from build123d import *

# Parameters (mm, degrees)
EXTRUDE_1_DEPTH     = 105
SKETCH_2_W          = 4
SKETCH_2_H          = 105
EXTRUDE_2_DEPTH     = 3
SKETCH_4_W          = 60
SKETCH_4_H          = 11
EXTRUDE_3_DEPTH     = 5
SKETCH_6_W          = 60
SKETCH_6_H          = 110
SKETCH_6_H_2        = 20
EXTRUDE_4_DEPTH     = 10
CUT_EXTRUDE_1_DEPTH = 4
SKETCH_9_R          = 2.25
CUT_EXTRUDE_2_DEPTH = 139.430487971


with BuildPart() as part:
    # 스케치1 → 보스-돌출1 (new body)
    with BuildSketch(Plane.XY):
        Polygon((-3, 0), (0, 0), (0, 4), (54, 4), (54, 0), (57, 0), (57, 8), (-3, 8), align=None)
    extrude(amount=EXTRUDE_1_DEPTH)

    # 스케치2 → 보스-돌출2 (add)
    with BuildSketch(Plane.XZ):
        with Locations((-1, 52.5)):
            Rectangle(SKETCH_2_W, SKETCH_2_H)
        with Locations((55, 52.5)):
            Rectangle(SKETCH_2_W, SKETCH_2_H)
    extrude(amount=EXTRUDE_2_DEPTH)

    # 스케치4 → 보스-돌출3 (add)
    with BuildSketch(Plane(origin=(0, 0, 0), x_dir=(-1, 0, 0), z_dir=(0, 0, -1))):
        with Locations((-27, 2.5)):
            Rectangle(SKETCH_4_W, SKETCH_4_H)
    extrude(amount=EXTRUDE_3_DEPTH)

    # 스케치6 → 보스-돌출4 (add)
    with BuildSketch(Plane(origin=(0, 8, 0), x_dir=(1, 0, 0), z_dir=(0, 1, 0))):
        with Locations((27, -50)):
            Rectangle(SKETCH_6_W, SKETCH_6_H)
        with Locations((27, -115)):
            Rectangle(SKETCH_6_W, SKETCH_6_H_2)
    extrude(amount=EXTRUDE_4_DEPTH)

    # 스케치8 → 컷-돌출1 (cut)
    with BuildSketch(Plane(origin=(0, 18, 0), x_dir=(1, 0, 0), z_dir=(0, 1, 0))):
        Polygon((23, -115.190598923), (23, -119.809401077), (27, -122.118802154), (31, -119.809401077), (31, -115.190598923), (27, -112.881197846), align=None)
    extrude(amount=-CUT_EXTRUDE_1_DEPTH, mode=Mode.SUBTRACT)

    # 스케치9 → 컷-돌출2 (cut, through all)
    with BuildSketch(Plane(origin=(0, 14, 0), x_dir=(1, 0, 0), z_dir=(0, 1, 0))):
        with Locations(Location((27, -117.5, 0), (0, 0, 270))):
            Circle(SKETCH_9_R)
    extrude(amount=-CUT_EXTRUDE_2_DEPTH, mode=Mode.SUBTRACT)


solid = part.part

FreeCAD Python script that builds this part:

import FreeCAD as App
import Part
import Sketcher
from FreeCAD import Vector
Q = App.Units.Quantity


def add_polygon(sketch, points):
    """Adds a closed chain of lines whose ends are joined by coincident constraints."""
    first, n = sketch.GeometryCount, len(points)
    for a, b in zip(points, points[1:] + points[:1]):
        sketch.addGeometry(Part.LineSegment(App.Vector(*a, 0), App.Vector(*b, 0)), False)
    for i in range(n):
        sketch.addConstraint(Sketcher.Constraint("Coincident", first + i, 2, first + (i + 1) % n, 1))

doc = App.newDocument("Part")
body = doc.addObject("PartDesign::Body", "Body")

# Sketch on XY plane
sketch1 = doc.addObject("Sketcher::SketchObject", "Sketch")
body.addObject(sketch1)
sketch1.AttachmentSupport = (doc.XY_Plane, [""])
sketch1.MapMode = "FlatFace"
add_polygon(sketch1, [(-3, 0), (0, 0), (0, 4), (54, 4), (54, 0), (57, 0), (57, 8), (-3, 8)])  # lines 0-7
sketch1.addConstraint([
    Sketcher.Constraint("Horizontal", 0),
    Sketcher.Constraint("Vertical", 1),
    Sketcher.Constraint("Horizontal", 2),
    Sketcher.Constraint("Vertical", 3),
    Sketcher.Constraint("Horizontal", 4),
    Sketcher.Constraint("Vertical", 5),
    Sketcher.Constraint("Horizontal", 6),
    Sketcher.Constraint("Vertical", 7),
    Sketcher.Constraint("Coincident", 0, 2, -1, 1),
    Sketcher.Constraint("PointOnObject", 3, 2, -1),
    Sketcher.Constraint("Equal", 0, 4),
    Sketcher.Constraint("DistanceX", 0, 1, 0, 2, 3.0),
    Sketcher.Constraint("DistanceX", 2, 1, 2, 2, 54.0),
    Sketcher.Constraint("DistanceY", 1, 1, 1, 2, 4.0),
    Sketcher.Constraint("DistanceY", 5, 1, 5, 2, 8.0),
])
pad1 = doc.addObject("PartDesign::Pad", "Pad")
body.addObject(pad1)
pad1.Profile = sketch1
pad1.Length = 105

# Sketch on XZ plane
sketch2 = doc.addObject("Sketcher::SketchObject", "Sketch001")
body.addObject(sketch2)
sketch2.AttachmentSupport = (doc.XZ_Plane, [""])
sketch2.MapMode = "FlatFace"
add_polygon(sketch2, [(-3, 105), (-3, 0), (1, 0), (1, 105)])  # lines 0-3
add_polygon(sketch2, [(53, 105), (53, 0), (57, 0), (57, 105)])  # lines 4-7
sketch2.addConstraint([
    Sketcher.Constraint("Vertical", 0),
    Sketcher.Constraint("Horizontal", 1),
    Sketcher.Constraint("Vertical", 2),
    Sketcher.Constraint("Horizontal", 3),
    Sketcher.Constraint("Vertical", 4),
    Sketcher.Constraint("Horizontal", 5),
    Sketcher.Constraint("Vertical", 6),
    Sketcher.Constraint("Horizontal", 7),
    Sketcher.Constraint("PointOnObject", 0, 2, -1),
    Sketcher.Constraint("PointOnObject", 4, 2, -1),
    Sketcher.Constraint("Horizontal", 3, 2, 6, 2),
    Sketcher.Constraint("Equal", 3, 5),
    Sketcher.Constraint("DistanceX", 1, 1, 1, 2, 4.0),
    Sketcher.Constraint("DistanceY", 0, 2, 0, 1, 105.0),
    Sketcher.Constraint("DistanceX", 0, 2, -1, 1, 3.0),
    Sketcher.Constraint("DistanceX", -1, 1, 4, 2, 53.0),
])
pad2 = doc.addObject("PartDesign::Pad", "Pad001")
body.addObject(pad2)
pad2.Profile = sketch2
pad2.Length = 3

# Sketch on XY plane
sketch3 = doc.addObject("Sketcher::SketchObject", "Sketch002")
body.addObject(sketch3)
sketch3.AttachmentSupport = (doc.XY_Plane, [""])
sketch3.MapMode = "FlatFace"
add_polygon(sketch3, [(57, 8), (57, -3), (-3, -3), (-3, 8)])  # lines 0-3
sketch3.addConstraint([
    Sketcher.Constraint("Vertical", 0),
    Sketcher.Constraint("Horizontal", 1),
    Sketcher.Constraint("Vertical", 2),
    Sketcher.Constraint("Horizontal", 3),
    Sketcher.Constraint("DistanceX", 1, 2, 1, 1, 60.0),
    Sketcher.Constraint("DistanceY", 0, 2, 0, 1, 11.0),
    Sketcher.Constraint("DistanceX", -1, 1, 0, 2, 57.0),
    Sketcher.Constraint("DistanceY", 0, 2, -1, 1, 3.0),
])
pad3 = doc.addObject("PartDesign::Pad", "Pad002")
body.addObject(pad3)
pad3.Profile = sketch3
pad3.Length = 5
pad3.Reversed = True

# Sketch on XZ plane
sketch4 = doc.addObject("Sketcher::SketchObject", "Sketch003")
body.addObject(sketch4)
sketch4.AttachmentSupport = (doc.XZ_Plane, [""])
sketch4.MapMode = "FlatFace"
sketch4.AttachmentOffset = App.Placement(Vector(0, 0, -8), App.Rotation())
add_polygon(sketch4, [(-3, -5), (-3, 125), (57, 125), (57, -5)])  # lines 0-3
sketch4.addConstraint([
    Sketcher.Constraint("Vertical", 0),
    Sketcher.Constraint("Horizontal", 1),
    Sketcher.Constraint("Vertical", 2),
    Sketcher.Constraint("Horizontal", 3),
    Sketcher.Constraint("DistanceX", 1, 1, 1, 2, 60.0),
    Sketcher.Constraint("DistanceY", 0, 1, 0, 2, 130.0),
    Sketcher.Constraint("DistanceX", 0, 2, -1, 1, 3.0),
    Sketcher.Constraint("DistanceY", -1, 1, 0, 2, 125.0),
])
pad4 = doc.addObject("PartDesign::Pad", "Pad003")
body.addObject(pad4)
pad4.Profile = sketch4
pad4.Length = 10
pad4.Reversed = True

# Sketch on XZ plane
sketch5 = doc.addObject("Sketcher::SketchObject", "Sketch004")
body.addObject(sketch5)
sketch5.AttachmentSupport = (doc.XZ_Plane, [""])
sketch5.MapMode = "FlatFace"
sketch5.AttachmentOffset = App.Placement(Vector(0, 0, -18), App.Rotation())
add_polygon(sketch5, [(23, 115.2), (23, 119.8), (27, 122.1), (31, 119.8), (31, 115.2), (27, 112.9)])  # lines 0-5
sketch5.addConstraint([
    Sketcher.Constraint("Vertical", 0),
    Sketcher.Constraint("Vertical", 3),
    Sketcher.Constraint("Parallel", 1, 4),
    Sketcher.Constraint("Parallel", 2, 5),
    Sketcher.Constraint("Horizontal", 0, 2, 2, 2),
    Sketcher.Constraint("Horizontal", 3, 2, 5, 2),
    Sketcher.Constraint("Vertical", 1, 2, 4, 2),
    Sketcher.Constraint("Angle", 1, Q("30 deg")),
    Sketcher.Constraint("DistanceX", -1, 1, 0, 2, 23.0),
    Sketcher.Constraint("DistanceX", -1, 1, 1, 2, 27.0),
    Sketcher.Constraint("DistanceY", -1, 1, 0, 2, 119.809401),
    Sketcher.Constraint("DistanceY", -1, 1, 3, 2, 115.190599),
])
pocket1 = doc.addObject("PartDesign::Pocket", "Pocket")
body.addObject(pocket1)
pocket1.Profile = sketch5
pocket1.Length = 4
pocket1.Reversed = True

# Sketch on XZ plane
sketch6 = doc.addObject("Sketcher::SketchObject", "Sketch005")
body.addObject(sketch6)
sketch6.AttachmentSupport = (doc.XZ_Plane, [""])
sketch6.MapMode = "FlatFace"
sketch6.AttachmentOffset = App.Placement(Vector(0, 0, -14), App.Rotation())
sketch6.addGeometry(Part.Circle(Vector(27, 117.5, 0), Vector(0, 0, 1), 2.2), False)
sketch6.addConstraint([
    Sketcher.Constraint("Diameter", 0, 4.5),
    Sketcher.Constraint("DistanceX", -1, 1, 0, 3, 27.0),
    Sketcher.Constraint("DistanceY", -1, 1, 0, 3, 117.5),
])
pocket2 = doc.addObject("PartDesign::Pocket", "Pocket001")
body.addObject(pocket2)
pocket2.Profile = sketch6
pocket2.Type = "ThroughAll"
pocket2.Reversed = True

doc.recompute()
